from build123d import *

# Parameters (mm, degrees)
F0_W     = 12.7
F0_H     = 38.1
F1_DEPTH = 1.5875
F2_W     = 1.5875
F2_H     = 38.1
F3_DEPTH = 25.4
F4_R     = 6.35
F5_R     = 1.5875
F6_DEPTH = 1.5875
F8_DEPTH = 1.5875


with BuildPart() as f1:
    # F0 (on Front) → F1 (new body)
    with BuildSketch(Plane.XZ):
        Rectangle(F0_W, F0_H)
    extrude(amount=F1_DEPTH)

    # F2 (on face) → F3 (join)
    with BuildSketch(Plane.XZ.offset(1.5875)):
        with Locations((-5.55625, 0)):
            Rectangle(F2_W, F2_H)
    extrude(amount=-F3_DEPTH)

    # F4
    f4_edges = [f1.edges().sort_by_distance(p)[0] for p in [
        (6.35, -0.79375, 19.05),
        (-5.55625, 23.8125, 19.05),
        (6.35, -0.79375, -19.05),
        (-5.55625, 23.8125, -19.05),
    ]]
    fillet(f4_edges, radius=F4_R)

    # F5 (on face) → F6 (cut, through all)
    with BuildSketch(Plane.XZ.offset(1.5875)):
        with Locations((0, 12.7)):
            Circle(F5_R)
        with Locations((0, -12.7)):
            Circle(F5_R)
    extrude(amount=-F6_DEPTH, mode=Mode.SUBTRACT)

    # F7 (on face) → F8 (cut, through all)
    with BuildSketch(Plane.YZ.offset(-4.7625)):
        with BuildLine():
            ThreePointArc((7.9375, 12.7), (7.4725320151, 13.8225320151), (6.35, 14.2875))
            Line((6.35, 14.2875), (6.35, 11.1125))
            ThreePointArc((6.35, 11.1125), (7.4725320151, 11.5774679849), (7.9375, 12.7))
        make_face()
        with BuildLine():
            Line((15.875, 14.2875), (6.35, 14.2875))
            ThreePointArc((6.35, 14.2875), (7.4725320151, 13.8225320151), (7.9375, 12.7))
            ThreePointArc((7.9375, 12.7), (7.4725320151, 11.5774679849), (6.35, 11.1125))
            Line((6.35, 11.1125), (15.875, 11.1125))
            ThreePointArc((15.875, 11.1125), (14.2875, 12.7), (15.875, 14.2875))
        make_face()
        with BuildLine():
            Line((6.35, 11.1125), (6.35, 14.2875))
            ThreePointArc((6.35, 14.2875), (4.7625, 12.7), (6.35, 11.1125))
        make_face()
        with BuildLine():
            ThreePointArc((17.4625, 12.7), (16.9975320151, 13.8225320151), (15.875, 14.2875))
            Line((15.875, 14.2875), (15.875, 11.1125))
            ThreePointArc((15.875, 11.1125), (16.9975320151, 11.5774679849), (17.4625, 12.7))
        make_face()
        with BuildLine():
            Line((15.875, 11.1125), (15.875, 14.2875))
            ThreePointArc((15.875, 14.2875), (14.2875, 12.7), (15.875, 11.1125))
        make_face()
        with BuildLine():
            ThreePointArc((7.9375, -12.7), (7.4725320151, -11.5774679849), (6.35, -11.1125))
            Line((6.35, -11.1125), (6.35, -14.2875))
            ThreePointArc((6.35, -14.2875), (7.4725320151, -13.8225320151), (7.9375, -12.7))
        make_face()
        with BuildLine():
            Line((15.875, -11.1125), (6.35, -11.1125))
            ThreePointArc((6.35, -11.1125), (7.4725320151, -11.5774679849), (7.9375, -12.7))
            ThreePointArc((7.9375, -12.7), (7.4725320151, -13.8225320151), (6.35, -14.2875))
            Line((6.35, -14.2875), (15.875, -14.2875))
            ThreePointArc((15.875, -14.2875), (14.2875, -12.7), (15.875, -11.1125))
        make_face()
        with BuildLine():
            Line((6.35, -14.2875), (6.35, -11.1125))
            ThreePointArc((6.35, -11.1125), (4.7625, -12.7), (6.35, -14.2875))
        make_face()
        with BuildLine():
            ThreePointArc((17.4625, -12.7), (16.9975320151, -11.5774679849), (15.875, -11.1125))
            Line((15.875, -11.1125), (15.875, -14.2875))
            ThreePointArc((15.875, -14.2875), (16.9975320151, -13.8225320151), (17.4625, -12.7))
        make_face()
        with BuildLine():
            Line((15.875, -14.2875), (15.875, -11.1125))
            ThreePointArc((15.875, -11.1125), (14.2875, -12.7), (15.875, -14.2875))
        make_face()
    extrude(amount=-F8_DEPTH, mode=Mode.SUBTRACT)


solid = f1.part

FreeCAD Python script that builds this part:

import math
import FreeCAD as App
import Part
import Sketcher
Q = App.Units.Quantity


def edges_at(feature, points):
    """Names of the edges that pass closest to the given points."""
    edges = feature.Shape.Edges
    near = lambda p: min(range(len(edges)), key=lambda i: edges[i].distToShape(Part.Vertex(*p))[0])
    return sorted({f"Edge{near(p) + 1}" for p in points})


def add_polygon(sketch, points):
    """Adds a closed chain of lines whose ends are joined by coincident constraints."""
    first, n = sketch.GeometryCount, len(points)
    for a, b in zip(points, points[1:] + points[:1]):
        sketch.addGeometry(Part.LineSegment(App.Vector(*a, 0), App.Vector(*b, 0)), False)
    for i in range(n):
        sketch.addConstraint(Sketcher.Constraint("Coincident", first + i, 2, first + (i + 1) % n, 1))

doc = App.newDocument("Part")
body = doc.addObject("PartDesign::Body", "Body")

# Sketch on XZ plane
sketch1 = body.newObject("Sketcher::SketchObject", "Sketch")
sketch1.AttachmentSupport = (doc.getObject("XZ_Plane"), [""])
sketch1.MapMode = "FlatFace"
add_polygon(sketch1, [(-6, 19), (-6, -19), (6, -19), (6, 19)])  # lines 0-3
sketch1.addConstraint([
    Sketcher.Constraint("Vertical", 0),
    Sketcher.Constraint("Horizontal", 1),
    Sketcher.Constraint("Vertical", 2),
    Sketcher.Constraint("Horizontal", 3),
    Sketcher.Constraint("Symmetric", 0, 2, 2, 2, -1, 1),
    Sketcher.Constraint("DistanceX", 1, 1, 1, 2, Q("0.5 in")),
    Sketcher.Constraint("DistanceY", 0, 2, 0, 1, Q("1.5 in")),
])
pad1 = body.newObject("PartDesign::Pad", "Pad")
pad1.Profile = sketch1
pad1.Length = Q("0.0625 in")

# Sketch on XZ plane
sketch2 = body.newObject("Sketcher::SketchObject", "Sketch001")
sketch2.AttachmentSupport = (doc.getObject("XZ_Plane"), [""])
sketch2.MapMode = "FlatFace"
sketch2.AttachmentOffset = App.Placement(App.Vector(0, 0, 0.0625 * 25.4), App.Rotation())
add_polygon(sketch2, [(-6.3, 19.1), (-6.3, -19.1), (-4.8, -19.1), (-4.8, 19.1)])  # lines 0-3
sketch2.addConstraint([
    Sketcher.Constraint("Vertical", 0),
    Sketcher.Constraint("Horizontal", 1),
    Sketcher.Constraint("Vertical", 2),
    Sketcher.Constraint("Horizontal", 3),
    Sketcher.Constraint("DistanceY", 0, 2, 0, 1, Q("1.5 in")),
    Sketcher.Constraint("DistanceX", 1, 1, 1, 2, Q("0.0625 in")),
    Sketcher.Constraint("DistanceX", 0, 2, -1, 1, Q("0.25 in")),
    Sketcher.Constraint("DistanceY", 0, 2, -1, 1, Q("0.75 in")),
])
pad2 = body.newObject("PartDesign::Pad", "Pad001")
pad2.Profile = sketch2
pad2.Length = Q("1 in")
pad2.Reversed = True
doc.recompute()

fillet = body.newObject("PartDesign::Fillet", "Fillet")
fillet.Base = (pad2, edges_at(pad2, [
    (6.35, -0.794, 19.05),
    (-5.556, 23.812, 19.05),
    (6.35, -0.794, -19.05),
    (-5.556, 23.812, -19.05),
]))
fillet.Radius = Q("0.25 in")

# Sketch on XZ plane
sketch3 = body.newObject("Sketcher::SketchObject", "Sketch002")
sketch3.AttachmentSupport = (doc.getObject("XZ_Plane"), [""])
sketch3.MapMode = "FlatFace"
sketch3.AttachmentOffset = App.Placement(App.Vector(0, 0, 0.0625 * 25.4), App.Rotation())
sketch3.addGeometry([
    Part.Circle(App.Vector(0, 12.7, 0), App.Vector(0, 0, 1), 1.6),
    Part.Circle(App.Vector(0, -12.7, 0), App.Vector(0, 0, 1), 1.6),
], False)
sketch3.addConstraint([
    Sketcher.Constraint("Equal", 0, 1),
    Sketcher.Constraint("Symmetric", 0, 3, 1, 3, -1, 1),
    Sketcher.Constraint("PointOnObject", 0, 3, -2),
    Sketcher.Constraint("Diameter", 0, Q("0.125 in")),
    Sketcher.Constraint("DistanceY", 1, 3, 0, 3, Q("1 in")),
])
pocket1 = body.newObject("PartDesign::Pocket", "Pocket")
pocket1.Profile = sketch3
pocket1.Type = "ThroughAll"

# Sketch on YZ plane
sketch4 = body.newObject("Sketcher::SketchObject", "Sketch003")
sketch4.AttachmentSupport = (doc.getObject("YZ_Plane"), [""])
sketch4.MapMode = "FlatFace"
sketch4.AttachmentOffset = App.Placement(App.Vector(0, 0, -0.1875 * 25.4), App.Rotation())
sketch4.addGeometry([
    Part.LineSegment(App.Vector(6.3, 11.1, 0), App.Vector(15.9, 11.1, 0)),  # 0
    Part.ArcOfCircle(Part.Circle(App.Vector(15.9, 12.7, 0), App.Vector(0, 0, 1), 1.6), math.radians(-90), math.radians(0)),  # 1
    Part.ArcOfCircle(Part.Circle(App.Vector(15.9, 12.7, 0), App.Vector(0, 0, 1), 1.6), math.radians(0), math.radians(90)),  # 2
    Part.LineSegment(App.Vector(15.9, 14.3, 0), App.Vector(6.3, 14.3, 0)),  # 3
    Part.ArcOfCircle(Part.Circle(App.Vector(6.3, 12.7, 0), App.Vector(0, 0, 1), 1.6), math.radians(90), math.radians(270)),  # 4
    Part.LineSegment(App.Vector(6.3, -14.3, 0), App.Vector(15.9, -14.3, 0)),  # 5
    Part.ArcOfCircle(Part.Circle(App.Vector(15.9, -12.7, 0), App.Vector(0, 0, 1), 1.6), math.radians(-90), math.radians(0)),  # 6
    Part.ArcOfCircle(Part.Circle(App.Vector(15.9, -12.7, 0), App.Vector(0, 0, 1), 1.6), math.radians(0), math.radians(90)),  # 7
    Part.LineSegment(App.Vector(15.9, -11.1, 0), App.Vector(6.3, -11.1, 0)),  # 8
    Part.ArcOfCircle(Part.Circle(App.Vector(6.3, -12.7, 0), App.Vector(0, 0, 1), 1.6), math.radians(90), math.radians(270)),  # 9
], False)
sketch4.addConstraint([
    Sketcher.Constraint("Tangent", 0, 2, 1, 1),
    Sketcher.Constraint("Tangent", 1, 2, 2, 1),
    Sketcher.Constraint("Tangent", 2, 2, 3, 1),
    Sketcher.Constraint("Tangent", 3, 2, 4, 1),
    Sketcher.Constraint("Tangent", 4, 2, 0, 1),
    Sketcher.Constraint("Tangent", 5, 2, 6, 1),
    Sketcher.Constraint("Tangent", 6, 2, 7, 1),
    Sketcher.Constraint("Tangent", 7, 2, 8, 1),
    Sketcher.Constraint("Tangent", 8, 2, 9, 1),
    Sketcher.Constraint("Tangent", 9, 2, 5, 1),
    Sketcher.Constraint("Horizontal", 0),
    Sketcher.Constraint("Horizontal", 3),
    Sketcher.Constraint("Horizontal", 5),
    Sketcher.Constraint("Horizontal", 8),
    Sketcher.Constraint("Equal", 1, 2),
    Sketcher.Constraint("Equal", 4, 6),
    Sketcher.Constraint("Equal", 6, 7),
    Sketcher.Constraint("Symmetric", 1, 3, 6, 3, -1),
    Sketcher.Constraint("Horizontal", 4, 3, 1, 2),
    Sketcher.Constraint("Horizontal", 9, 3, 6, 2),
    Sketcher.Constraint("Vertical", 4, 3, 9, 3),
    Sketcher.Constraint("Radius", 1, Q("0.0625 in")),
    Sketcher.Constraint("DistanceY", 6, 3, 1, 3, Q("1 in")),
    Sketcher.Constraint("DistanceX", 0, 1, 0, 2, Q("0.375 in")),
    Sketcher.Constraint("DistanceX", -1, 1, 4, 3, Q("0.25 in")),
])
pocket2 = body.newObject("PartDesign::Pocket", "Pocket001")
pocket2.Profile = sketch4
pocket2.Type = "ThroughAll"

doc.recompute()
